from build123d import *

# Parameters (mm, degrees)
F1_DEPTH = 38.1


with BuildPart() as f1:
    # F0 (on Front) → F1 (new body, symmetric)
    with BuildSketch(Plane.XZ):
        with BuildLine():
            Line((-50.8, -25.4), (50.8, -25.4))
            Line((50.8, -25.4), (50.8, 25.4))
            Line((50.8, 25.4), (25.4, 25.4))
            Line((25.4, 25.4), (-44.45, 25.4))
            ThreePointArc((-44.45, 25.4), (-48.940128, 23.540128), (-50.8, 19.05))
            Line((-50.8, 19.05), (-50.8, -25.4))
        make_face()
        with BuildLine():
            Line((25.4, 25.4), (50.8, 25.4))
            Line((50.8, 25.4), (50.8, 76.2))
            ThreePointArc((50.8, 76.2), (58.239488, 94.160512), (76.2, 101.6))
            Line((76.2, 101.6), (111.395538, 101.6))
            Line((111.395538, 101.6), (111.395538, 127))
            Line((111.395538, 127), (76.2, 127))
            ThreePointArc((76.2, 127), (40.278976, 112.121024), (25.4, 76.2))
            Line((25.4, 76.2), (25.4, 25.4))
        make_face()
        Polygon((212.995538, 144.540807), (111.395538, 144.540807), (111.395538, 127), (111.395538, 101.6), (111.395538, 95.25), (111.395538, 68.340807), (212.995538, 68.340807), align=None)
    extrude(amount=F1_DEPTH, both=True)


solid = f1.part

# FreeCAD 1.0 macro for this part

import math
import FreeCAD as App
import Part
import Sketcher

V = App.Vector
Q = App.Units.Quantity

doc = App.newDocument("Part")
body = doc.addObject("PartDesign::Body", "Body")

# Sketch on XZ plane
sketch1 = doc.addObject("Sketcher::SketchObject", "Sketch")
body.addObject(sketch1)
sketch1.AttachmentSupport = (doc.XZ_Plane, [""])
sketch1.MapMode = "FlatFace"
sketch1.addGeometry([
    Part.LineSegment(V(-50.8, -25.4, 0), V(50.8, -25.4, 0)),  # 0
    Part.LineSegment(V(50.8, -25.4, 0), V(50.8, 76.2, 0)),  # 1
    Part.ArcOfCircle(Part.Circle(V(76.200001, 76.199999, 0), V(0, 0, 1), 25.400001), math.radians(90.000002), math.radians(179.999998)),  # 2
    Part.LineSegment(V(76.2, 101.6, 0), V(111.395538, 101.6, 0)),  # 3
    Part.LineSegment(V(111.395538, 101.6, 0), V(111.395538, 68.340807, 0)),  # 4
    Part.LineSegment(V(111.395538, 68.340807, 0), V(212.995538, 68.340807, 0)),  # 5
    Part.LineSegment(V(212.995538, 68.340807, 0), V(212.995538, 144.540807, 0)),  # 6
    Part.LineSegment(V(212.995538, 144.540807, 0), V(111.395538, 144.540807, 0)),  # 7
    Part.LineSegment(V(111.395538, 144.540807, 0), V(111.395538, 127, 0)),  # 8
    Part.LineSegment(V(111.395538, 127, 0), V(76.2, 127, 0)),  # 9
    Part.ArcOfCircle(Part.Circle(V(76.200002, 76.199998, 0), V(0, 0, 1), 50.800002), math.radians(90.000002), math.radians(179.999998)),  # 10
    Part.LineSegment(V(25.4, 76.2, 0), V(25.4, 25.4, 0)),  # 11
    Part.LineSegment(V(25.4, 25.4, 0), V(-44.45, 25.4, 0)),  # 12
    Part.ArcOfCircle(Part.Circle(V(-44.45, 19.05, 0), V(0, 0, 1), 6.35), math.radians(90.000002), math.radians(179.999998)),  # 13
    Part.LineSegment(V(-50.8, 19.05, 0), V(-50.8, -25.4, 0)),  # 14
], False)
sketch1.addConstraint([
    Sketcher.Constraint("Coincident", 0, 2, 1, 1),
    Sketcher.Constraint("Tangent", 1, 2, 2, 2),
    Sketcher.Constraint("Tangent", 2, 1, 3, 1),
    Sketcher.Constraint("Coincident", 3, 2, 4, 1),
    Sketcher.Constraint("Coincident", 4, 2, 5, 1),
    Sketcher.Constraint("Coincident", 5, 2, 6, 1),
    Sketcher.Constraint("Coincident", 6, 2, 7, 1),
    Sketcher.Constraint("Coincident", 7, 2, 8, 1),
    Sketcher.Constraint("Coincident", 8, 2, 9, 1),
    Sketcher.Constraint("Tangent", 9, 2, 10, 1),
    Sketcher.Constraint("Tangent", 10, 2, 11, 1),
    Sketcher.Constraint("Coincident", 11, 2, 12, 1),
    Sketcher.Constraint("Tangent", 12, 2, 13, 1),
    Sketcher.Constraint("Tangent", 13, 2, 14, 1),
    Sketcher.Constraint("Coincident", 14, 2, 0, 1),
    Sketcher.Constraint("Horizontal", 0),
    Sketcher.Constraint("Vertical", 1),
    Sketcher.Constraint("Horizontal", 3),
    Sketcher.Constraint("Vertical", 4),
    Sketcher.Constraint("Horizontal", 5),
    Sketcher.Constraint("Vertical", 6),
    Sketcher.Constraint("Horizontal", 7),
    Sketcher.Constraint("Vertical", 8),
    Sketcher.Constraint("Horizontal", 9),
    Sketcher.Constraint("Vertical", 11),
    Sketcher.Constraint("Horizontal", 12),
    Sketcher.Constraint("Vertical", 14),
    Sketcher.Constraint("Coincident", 10, 3, 2, 3),
    Sketcher.Constraint("Vertical", 4, 2, 7, 2),
    Sketcher.Constraint("Equal", 0, 5),
    Sketcher.Constraint("Equal", 7, 1),
    Sketcher.Constraint("Radius", 2, Q("1 in")),
    Sketcher.Constraint("Radius", 10, Q("2.0000001 in")),
    Sketcher.Constraint("DistanceX", 0, 1, 0, 2, Q("4 in")),
    Sketcher.Constraint("DistanceY", 6, 1, 6, 2, Q("3 in")),
    Sketcher.Constraint("DistanceY", 11, 2, 11, 1, Q("2 in")),
    Sketcher.Constraint("Radius", 13, Q("0.25 in")),
    Sketcher.Constraint("DistanceX", -1, 1, 2, 3, Q("3 in")),
    Sketcher.Constraint("DistanceY", -1, 1, 2, 3, Q("3 in")),
    Sketcher.Constraint("DistanceX", 3, 1, 3, 2, Q("35.195538 mm")),
    Sketcher.Constraint("DistanceY", 4, 2, 4, 1, Q("33.259193 mm")),
])
pad1 = doc.addObject("PartDesign::Pad", "Pad")
body.addObject(pad1)
pad1.Profile = sketch1
pad1.Length = Q("3 in")
pad1.Midplane = True

doc.recompute()
